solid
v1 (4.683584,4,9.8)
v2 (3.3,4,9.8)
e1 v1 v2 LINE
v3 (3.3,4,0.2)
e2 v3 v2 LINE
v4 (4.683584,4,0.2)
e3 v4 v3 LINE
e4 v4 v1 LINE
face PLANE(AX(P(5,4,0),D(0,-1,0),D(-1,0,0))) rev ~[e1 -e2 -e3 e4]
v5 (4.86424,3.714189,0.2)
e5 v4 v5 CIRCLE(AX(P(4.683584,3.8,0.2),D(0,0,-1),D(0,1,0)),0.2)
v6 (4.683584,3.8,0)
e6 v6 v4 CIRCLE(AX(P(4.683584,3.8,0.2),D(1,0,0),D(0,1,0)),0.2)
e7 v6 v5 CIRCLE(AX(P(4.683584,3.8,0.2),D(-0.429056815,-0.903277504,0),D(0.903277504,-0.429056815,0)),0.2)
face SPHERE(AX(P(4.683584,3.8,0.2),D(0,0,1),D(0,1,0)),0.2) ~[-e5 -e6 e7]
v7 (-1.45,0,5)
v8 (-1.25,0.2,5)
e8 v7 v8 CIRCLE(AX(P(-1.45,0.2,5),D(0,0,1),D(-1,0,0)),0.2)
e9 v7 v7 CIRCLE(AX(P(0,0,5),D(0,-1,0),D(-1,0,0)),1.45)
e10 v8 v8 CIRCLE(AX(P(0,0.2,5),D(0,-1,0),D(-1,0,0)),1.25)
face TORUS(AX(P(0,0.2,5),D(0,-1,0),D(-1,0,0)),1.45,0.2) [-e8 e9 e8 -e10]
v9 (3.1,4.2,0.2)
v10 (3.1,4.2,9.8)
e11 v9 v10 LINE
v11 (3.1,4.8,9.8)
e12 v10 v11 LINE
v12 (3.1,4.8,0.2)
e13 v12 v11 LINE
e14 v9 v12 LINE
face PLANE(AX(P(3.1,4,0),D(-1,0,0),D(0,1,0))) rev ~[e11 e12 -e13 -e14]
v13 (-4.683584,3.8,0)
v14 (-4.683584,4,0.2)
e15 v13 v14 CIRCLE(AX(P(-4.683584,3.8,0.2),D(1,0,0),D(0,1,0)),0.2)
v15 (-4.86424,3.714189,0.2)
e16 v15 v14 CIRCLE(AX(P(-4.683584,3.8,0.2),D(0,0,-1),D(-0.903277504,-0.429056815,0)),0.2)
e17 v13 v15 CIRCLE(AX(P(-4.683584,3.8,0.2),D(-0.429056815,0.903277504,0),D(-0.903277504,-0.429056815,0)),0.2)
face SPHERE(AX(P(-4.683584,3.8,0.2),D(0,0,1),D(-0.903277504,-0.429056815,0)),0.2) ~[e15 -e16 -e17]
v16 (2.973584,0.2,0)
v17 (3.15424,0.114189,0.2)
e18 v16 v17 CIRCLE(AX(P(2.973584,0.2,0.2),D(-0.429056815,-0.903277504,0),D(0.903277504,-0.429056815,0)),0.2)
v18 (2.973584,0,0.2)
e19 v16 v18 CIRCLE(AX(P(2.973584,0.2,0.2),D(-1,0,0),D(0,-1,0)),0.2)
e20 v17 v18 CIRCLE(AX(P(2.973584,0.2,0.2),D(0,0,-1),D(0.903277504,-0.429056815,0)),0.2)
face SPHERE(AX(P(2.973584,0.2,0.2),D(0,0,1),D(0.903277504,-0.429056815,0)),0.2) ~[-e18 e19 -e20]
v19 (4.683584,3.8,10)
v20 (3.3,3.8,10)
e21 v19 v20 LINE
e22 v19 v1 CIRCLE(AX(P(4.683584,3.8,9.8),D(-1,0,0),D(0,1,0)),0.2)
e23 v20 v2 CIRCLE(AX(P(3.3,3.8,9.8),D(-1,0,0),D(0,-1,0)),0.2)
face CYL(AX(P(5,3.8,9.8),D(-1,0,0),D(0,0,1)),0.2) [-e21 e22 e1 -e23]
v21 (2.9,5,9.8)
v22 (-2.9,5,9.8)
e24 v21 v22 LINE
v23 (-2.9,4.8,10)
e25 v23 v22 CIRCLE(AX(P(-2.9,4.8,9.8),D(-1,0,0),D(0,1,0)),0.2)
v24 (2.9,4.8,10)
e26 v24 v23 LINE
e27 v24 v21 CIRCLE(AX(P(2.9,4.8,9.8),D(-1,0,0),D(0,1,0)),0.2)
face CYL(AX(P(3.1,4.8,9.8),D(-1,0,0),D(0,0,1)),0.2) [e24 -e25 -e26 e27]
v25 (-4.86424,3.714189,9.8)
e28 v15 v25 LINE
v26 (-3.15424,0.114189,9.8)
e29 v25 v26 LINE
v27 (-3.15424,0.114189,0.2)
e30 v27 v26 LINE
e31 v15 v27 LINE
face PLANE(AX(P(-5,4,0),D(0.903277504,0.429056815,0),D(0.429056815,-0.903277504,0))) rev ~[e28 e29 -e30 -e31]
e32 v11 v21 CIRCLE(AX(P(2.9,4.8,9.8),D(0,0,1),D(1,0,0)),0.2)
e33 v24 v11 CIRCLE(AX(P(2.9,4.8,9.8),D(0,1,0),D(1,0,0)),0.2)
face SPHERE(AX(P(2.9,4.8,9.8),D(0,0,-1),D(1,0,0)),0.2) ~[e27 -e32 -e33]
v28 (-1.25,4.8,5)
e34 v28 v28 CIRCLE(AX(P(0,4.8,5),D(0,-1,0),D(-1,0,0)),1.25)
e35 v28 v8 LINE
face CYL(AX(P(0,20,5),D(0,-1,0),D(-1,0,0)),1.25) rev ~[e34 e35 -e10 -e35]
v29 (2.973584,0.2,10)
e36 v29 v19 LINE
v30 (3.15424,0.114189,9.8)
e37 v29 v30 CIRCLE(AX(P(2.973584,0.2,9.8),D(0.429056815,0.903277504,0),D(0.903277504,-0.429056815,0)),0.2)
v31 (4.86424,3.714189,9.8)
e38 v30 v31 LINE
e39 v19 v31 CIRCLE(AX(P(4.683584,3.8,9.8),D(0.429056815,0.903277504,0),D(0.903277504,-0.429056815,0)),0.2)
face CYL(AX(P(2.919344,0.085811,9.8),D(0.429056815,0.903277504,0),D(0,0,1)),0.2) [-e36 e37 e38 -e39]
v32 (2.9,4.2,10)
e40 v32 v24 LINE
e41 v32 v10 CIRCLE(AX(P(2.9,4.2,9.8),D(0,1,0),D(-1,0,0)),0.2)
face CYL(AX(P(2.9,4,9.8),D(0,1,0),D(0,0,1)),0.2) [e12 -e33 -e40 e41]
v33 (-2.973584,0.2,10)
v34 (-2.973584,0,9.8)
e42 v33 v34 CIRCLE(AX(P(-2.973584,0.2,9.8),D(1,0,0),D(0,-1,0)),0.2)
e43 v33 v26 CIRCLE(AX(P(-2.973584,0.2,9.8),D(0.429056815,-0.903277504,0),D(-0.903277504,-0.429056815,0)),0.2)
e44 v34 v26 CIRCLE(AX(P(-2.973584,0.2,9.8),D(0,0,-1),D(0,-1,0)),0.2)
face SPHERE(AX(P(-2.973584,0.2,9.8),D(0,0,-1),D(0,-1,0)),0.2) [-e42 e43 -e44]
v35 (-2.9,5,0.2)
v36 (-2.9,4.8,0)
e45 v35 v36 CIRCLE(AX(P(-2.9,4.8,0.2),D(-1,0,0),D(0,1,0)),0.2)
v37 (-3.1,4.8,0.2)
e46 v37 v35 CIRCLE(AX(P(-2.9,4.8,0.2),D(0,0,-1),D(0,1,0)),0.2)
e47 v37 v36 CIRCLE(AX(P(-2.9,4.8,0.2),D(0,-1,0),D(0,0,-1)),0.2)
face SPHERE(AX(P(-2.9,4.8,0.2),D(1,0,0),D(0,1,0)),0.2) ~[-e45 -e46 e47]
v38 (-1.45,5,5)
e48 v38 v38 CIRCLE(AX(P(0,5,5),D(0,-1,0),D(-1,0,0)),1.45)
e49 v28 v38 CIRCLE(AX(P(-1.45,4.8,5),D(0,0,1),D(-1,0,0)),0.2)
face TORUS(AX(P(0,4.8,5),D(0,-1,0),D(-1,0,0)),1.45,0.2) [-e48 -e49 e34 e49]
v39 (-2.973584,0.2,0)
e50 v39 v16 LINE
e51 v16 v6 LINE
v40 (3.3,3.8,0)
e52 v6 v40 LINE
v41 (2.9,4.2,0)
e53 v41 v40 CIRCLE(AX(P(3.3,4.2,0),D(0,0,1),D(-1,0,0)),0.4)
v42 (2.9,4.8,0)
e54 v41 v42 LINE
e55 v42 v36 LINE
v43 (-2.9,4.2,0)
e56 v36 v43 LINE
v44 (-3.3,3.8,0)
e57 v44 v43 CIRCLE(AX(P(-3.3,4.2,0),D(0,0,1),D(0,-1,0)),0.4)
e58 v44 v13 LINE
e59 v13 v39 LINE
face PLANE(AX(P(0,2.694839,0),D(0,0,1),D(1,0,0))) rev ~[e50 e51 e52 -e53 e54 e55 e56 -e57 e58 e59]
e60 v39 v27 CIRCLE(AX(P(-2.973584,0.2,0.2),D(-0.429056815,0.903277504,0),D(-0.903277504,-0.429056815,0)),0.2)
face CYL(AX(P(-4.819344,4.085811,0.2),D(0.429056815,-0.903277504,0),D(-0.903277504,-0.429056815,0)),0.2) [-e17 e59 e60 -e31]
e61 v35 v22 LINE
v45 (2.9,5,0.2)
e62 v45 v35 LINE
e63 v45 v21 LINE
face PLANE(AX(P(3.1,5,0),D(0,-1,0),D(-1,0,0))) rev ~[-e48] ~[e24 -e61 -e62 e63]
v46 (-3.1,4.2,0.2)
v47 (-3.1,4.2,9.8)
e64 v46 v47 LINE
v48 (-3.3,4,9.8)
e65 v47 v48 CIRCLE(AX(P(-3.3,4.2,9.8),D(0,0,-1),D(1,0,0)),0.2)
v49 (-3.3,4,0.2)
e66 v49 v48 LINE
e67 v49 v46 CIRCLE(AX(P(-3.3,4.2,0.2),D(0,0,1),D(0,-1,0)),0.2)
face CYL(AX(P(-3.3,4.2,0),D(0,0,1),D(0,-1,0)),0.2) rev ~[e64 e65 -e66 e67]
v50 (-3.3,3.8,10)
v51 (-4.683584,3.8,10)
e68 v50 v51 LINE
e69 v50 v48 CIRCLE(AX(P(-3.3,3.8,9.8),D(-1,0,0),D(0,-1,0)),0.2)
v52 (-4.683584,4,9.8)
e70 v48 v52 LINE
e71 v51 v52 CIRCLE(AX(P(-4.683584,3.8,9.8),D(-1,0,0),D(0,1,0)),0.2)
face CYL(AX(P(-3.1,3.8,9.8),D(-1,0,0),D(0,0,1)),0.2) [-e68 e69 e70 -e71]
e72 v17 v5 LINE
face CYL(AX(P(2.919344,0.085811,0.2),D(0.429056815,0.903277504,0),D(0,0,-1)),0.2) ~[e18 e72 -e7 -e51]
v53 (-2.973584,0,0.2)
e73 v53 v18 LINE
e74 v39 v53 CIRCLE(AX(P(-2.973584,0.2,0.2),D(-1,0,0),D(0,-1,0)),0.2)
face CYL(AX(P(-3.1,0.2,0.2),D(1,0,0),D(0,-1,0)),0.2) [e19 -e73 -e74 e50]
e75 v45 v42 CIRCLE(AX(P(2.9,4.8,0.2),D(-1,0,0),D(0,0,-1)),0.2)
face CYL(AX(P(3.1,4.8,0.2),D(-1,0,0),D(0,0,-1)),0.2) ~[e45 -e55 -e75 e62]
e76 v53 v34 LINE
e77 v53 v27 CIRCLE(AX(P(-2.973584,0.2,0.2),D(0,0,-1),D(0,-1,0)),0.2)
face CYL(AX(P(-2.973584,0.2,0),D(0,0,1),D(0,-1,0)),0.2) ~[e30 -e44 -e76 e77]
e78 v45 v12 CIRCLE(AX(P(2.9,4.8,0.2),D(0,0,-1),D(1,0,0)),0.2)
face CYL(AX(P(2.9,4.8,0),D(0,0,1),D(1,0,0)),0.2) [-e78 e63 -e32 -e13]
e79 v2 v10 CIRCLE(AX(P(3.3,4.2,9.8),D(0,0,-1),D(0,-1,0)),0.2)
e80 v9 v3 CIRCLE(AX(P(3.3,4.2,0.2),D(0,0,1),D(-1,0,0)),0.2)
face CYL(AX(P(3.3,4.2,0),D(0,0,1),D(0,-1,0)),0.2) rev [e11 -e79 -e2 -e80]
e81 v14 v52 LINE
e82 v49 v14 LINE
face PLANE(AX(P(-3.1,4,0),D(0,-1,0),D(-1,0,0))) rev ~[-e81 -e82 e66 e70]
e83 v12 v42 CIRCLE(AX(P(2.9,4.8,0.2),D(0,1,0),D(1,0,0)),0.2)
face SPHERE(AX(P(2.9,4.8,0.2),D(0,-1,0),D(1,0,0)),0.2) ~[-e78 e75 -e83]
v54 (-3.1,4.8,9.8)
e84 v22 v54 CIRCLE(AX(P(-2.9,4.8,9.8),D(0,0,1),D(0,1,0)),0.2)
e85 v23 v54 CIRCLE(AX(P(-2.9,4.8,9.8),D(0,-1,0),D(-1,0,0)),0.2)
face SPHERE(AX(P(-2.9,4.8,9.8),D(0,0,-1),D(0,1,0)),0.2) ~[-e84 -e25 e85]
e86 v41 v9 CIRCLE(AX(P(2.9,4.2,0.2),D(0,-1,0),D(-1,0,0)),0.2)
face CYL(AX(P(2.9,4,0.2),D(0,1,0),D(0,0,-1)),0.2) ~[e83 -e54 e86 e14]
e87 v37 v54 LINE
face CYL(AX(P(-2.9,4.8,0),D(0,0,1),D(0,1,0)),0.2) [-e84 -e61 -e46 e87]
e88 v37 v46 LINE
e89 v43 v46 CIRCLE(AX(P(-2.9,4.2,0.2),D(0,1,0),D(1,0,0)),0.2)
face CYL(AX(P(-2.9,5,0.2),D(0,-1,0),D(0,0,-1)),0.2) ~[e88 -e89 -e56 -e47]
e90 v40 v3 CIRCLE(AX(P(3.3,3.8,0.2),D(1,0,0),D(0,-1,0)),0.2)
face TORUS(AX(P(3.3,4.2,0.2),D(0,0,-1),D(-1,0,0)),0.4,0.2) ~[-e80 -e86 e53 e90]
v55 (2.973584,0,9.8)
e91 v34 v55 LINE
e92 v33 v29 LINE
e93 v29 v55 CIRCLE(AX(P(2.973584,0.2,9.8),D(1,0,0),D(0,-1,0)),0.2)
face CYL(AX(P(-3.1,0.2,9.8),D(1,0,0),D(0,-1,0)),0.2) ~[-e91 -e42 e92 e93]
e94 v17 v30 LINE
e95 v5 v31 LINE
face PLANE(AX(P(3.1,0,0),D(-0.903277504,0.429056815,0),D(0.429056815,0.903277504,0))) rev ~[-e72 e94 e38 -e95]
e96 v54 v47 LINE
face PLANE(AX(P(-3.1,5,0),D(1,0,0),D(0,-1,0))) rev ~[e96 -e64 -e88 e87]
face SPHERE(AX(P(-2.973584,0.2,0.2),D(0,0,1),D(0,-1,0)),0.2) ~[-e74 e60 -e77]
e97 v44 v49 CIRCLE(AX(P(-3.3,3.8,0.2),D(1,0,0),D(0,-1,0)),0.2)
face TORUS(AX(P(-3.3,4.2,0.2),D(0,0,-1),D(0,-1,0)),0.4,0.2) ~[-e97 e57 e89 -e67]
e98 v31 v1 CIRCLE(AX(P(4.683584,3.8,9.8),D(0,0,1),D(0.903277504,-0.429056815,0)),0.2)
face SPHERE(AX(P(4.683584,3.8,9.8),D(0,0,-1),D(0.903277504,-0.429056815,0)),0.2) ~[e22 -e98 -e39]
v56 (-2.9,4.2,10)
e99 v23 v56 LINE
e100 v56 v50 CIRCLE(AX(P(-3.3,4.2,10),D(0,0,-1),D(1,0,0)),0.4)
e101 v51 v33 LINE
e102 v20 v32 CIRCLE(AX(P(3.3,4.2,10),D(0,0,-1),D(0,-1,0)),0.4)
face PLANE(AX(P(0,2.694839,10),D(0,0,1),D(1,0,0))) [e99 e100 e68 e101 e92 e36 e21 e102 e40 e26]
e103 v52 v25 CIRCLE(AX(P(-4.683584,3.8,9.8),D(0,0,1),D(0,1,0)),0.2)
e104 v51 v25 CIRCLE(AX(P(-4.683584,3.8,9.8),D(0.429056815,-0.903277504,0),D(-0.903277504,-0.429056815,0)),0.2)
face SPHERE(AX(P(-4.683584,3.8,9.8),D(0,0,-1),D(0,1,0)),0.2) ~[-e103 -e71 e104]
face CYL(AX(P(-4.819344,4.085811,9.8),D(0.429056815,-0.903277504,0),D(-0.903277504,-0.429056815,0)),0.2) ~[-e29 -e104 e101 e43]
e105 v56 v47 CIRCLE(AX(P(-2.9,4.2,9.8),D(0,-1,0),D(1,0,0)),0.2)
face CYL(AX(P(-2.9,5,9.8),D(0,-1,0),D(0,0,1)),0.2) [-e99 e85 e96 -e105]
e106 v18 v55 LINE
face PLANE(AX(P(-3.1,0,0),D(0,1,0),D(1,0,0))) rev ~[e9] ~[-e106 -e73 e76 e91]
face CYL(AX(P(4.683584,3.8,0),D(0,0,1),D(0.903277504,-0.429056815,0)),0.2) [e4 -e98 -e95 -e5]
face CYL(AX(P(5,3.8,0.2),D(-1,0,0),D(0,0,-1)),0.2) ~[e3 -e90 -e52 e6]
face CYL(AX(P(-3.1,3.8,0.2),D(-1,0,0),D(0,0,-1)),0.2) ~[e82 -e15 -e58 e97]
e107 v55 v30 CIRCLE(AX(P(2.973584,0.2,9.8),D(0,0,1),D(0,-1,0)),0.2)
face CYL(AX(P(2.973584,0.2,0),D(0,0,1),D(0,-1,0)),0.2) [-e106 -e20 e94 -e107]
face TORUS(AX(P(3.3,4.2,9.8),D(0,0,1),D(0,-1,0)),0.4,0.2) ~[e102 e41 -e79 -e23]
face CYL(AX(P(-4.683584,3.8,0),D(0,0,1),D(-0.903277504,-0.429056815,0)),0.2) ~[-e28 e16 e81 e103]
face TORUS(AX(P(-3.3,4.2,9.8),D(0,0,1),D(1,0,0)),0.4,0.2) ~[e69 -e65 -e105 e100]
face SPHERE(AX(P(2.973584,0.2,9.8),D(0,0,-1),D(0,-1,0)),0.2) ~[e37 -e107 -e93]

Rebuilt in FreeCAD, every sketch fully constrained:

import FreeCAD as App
import Part
import Sketcher
Q = App.Units.Quantity


def add_polygon(sketch, points):
    """Adds a closed chain of lines whose ends are joined by coincident constraints."""
    first, n = sketch.GeometryCount, len(points)
    for a, b in zip(points, points[1:] + points[:1]):
        sketch.addGeometry(Part.LineSegment(App.Vector(*a, 0), App.Vector(*b, 0)), False)
    for i in range(n):
        sketch.addConstraint(Sketcher.Constraint("Coincident", first + i, 2, first + (i + 1) % n, 1))

doc = App.newDocument("Part")
body = doc.addObject("PartDesign::Body", "Body")

# Sketch on XY plane
sketch1 = body.newObject("Sketcher::SketchObject", "Sketch")
sketch1.AttachmentSupport = (doc.getObject("XY_Plane"), [""])
sketch1.MapMode = "FlatFace"
add_polygon(sketch1, [(-3.1, 0), (3.1, 0), (5, 4), (3.1, 4), (3.1, 5), (-3.1, 5), (-3.1, 4), (-5, 4)])  # lines 0-7
sketch1.addConstraint(Sketcher.Constraint("Horizontal", 0))
sketch1.addConstraint(Sketcher.Constraint("Horizontal", 2))
sketch1.addConstraint(Sketcher.Constraint("Vertical", 3))
sketch1.addConstraint(Sketcher.Constraint("Horizontal", 4))
sketch1.addConstraint(Sketcher.Constraint("Vertical", 5))
sketch1.addConstraint(Sketcher.Constraint("Horizontal", 6))
sketch1.addConstraint(Sketcher.Constraint("Symmetric", 0, 2, 7, 2, -1, 1))
sketch1.addConstraint(Sketcher.Constraint("Symmetric", 2, 2, 5, 2, -2))
sketch1.addConstraint(Sketcher.Constraint("Vertical", 0, 2, 2, 2))
sketch1.addConstraint(Sketcher.Constraint("Equal", 2, 6))
sketch1.addConstraint(Sketcher.Constraint("DistanceY", 3, 1, 3, 2, Q("1 mm")))
sketch1.addConstraint(Sketcher.Constraint("DistanceX", 0, 1, 0, 2, Q("6.2 mm")))
sketch1.addConstraint(Sketcher.Constraint("DistanceX", 2, 2, 2, 1, Q("1.9 mm")))
sketch1.addConstraint(Sketcher.Constraint("DistanceY", -1, 1, 1, 2, Q("4 mm")))
pad1 = body.newObject("PartDesign::Pad", "Pad")
pad1.Profile = sketch1
pad1.Length = 10

# Sketch on XZ plane
sketch2 = body.newObject("Sketcher::SketchObject", "Sketch001")
sketch2.AttachmentSupport = (doc.getObject("XZ_Plane"), [""])
sketch2.MapMode = "FlatFace"
sketch2.AttachmentOffset = App.Placement(App.Vector(0, 0, -5), App.Rotation())
sketch2.addGeometry(Part.Circle(App.Vector(0, 5, 0), App.Vector(0, 0, 1), 1.2), False)
sketch2.addConstraint(Sketcher.Constraint("PointOnObject", 0, 3, -2))
sketch2.addConstraint(Sketcher.Constraint("Diameter", 0, Q("2.5 mm")))
sketch2.addConstraint(Sketcher.Constraint("DistanceY", -1, 1, 0, 3, Q("5 mm")))
doc.recompute()
hole = body.newObject("PartDesign::Hole", "Hole")
hole.Profile = sketch2
hole.ThreadType = "None"
hole.Diameter = 2.5
hole.DepthType = "ThroughAll"
hole.Reversed = True
doc.recompute()

fillet = body.newObject("PartDesign::Fillet", "Fillet")
fillet.Base = (hole, ["Edge1"])
fillet.UseAllEdges = True
fillet.Radius = 0.2

doc.recompute()
